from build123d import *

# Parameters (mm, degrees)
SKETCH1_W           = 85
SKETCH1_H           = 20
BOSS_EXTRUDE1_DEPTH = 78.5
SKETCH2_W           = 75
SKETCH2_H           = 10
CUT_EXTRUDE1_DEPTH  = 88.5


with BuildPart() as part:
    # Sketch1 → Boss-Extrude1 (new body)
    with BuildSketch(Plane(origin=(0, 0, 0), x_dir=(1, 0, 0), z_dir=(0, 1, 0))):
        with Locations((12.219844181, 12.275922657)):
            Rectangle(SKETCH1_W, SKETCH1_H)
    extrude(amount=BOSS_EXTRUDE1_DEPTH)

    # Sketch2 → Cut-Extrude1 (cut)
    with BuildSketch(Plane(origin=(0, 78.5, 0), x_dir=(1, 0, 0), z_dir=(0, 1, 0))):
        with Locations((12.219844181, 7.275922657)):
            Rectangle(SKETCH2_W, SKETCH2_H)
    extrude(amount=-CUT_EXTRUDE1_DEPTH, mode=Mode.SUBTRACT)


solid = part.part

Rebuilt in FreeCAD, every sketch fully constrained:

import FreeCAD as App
import Part
import Sketcher

V = App.Vector
Q = App.Units.Quantity

doc = App.newDocument("Part")
body = doc.addObject("PartDesign::Body", "Body")

# Sketch on XZ plane
sketch1 = body.newObject("Sketcher::SketchObject", "Sketch")
sketch1.AttachmentSupport = (doc.getObject("XZ_Plane"), [""])
sketch1.MapMode = "FlatFace"
sketch1.addGeometry([
    Part.LineSegment(V(-30.280156, -22.275923, 0), V(-30.280156, -2.275923, 0)),
    Part.LineSegment(V(-30.280156, -2.275923, 0), V(54.719844, -2.275923, 0)),
    Part.LineSegment(V(54.719844, -2.275923, 0), V(54.719844, -22.275923, 0)),
    Part.LineSegment(V(54.719844, -22.275923, 0), V(-30.280156, -22.275923, 0)),
], False)
sketch1.addConstraint([
    Sketcher.Constraint("Coincident", 0, 2, 1, 1),
    Sketcher.Constraint("Coincident", 1, 2, 2, 1),
    Sketcher.Constraint("Coincident", 2, 2, 3, 1),
    Sketcher.Constraint("Coincident", 3, 2, 0, 1),
    Sketcher.Constraint("Vertical", 0),
    Sketcher.Constraint("Horizontal", 1),
    Sketcher.Constraint("Vertical", 2),
    Sketcher.Constraint("Horizontal", 3),
    Sketcher.Constraint("DistanceX", 1, 1, 1, 2, Q("85 mm")),
    Sketcher.Constraint("DistanceY", 0, 1, 0, 2, Q("20 mm")),
    Sketcher.Constraint("DistanceX", 0, 2, -1, 1, Q("30.280156 mm")),
    Sketcher.Constraint("DistanceY", 0, 2, -1, 1, Q("2.275923 mm")),
])
pad1 = body.newObject("PartDesign::Pad", "Pad")
pad1.Profile = sketch1
pad1.Length = 78.5
pad1.Reversed = True

# Sketch on XZ plane
sketch2 = body.newObject("Sketcher::SketchObject", "Sketch001")
sketch2.AttachmentSupport = (doc.getObject("XZ_Plane"), [""])
sketch2.MapMode = "FlatFace"
sketch2.AttachmentOffset = App.Placement(V(0, 0, -78.5), App.Rotation())
sketch2.addGeometry([
    Part.LineSegment(V(-25.280156, -12.275923, 0), V(-25.280156, -2.275923, 0)),
    Part.LineSegment(V(-25.280156, -2.275923, 0), V(49.719844, -2.275923, 0)),
    Part.LineSegment(V(49.719844, -2.275923, 0), V(49.719844, -12.275923, 0)),
    Part.LineSegment(V(49.719844, -12.275923, 0), V(-25.280156, -12.275923, 0)),
], False)
sketch2.addConstraint([
    Sketcher.Constraint("Coincident", 0, 2, 1, 1),
    Sketcher.Constraint("Coincident", 1, 2, 2, 1),
    Sketcher.Constraint("Coincident", 2, 2, 3, 1),
    Sketcher.Constraint("Coincident", 3, 2, 0, 1),
    Sketcher.Constraint("Vertical", 0),
    Sketcher.Constraint("Horizontal", 1),
    Sketcher.Constraint("Vertical", 2),
    Sketcher.Constraint("Horizontal", 3),
    Sketcher.Constraint("DistanceX", 1, 1, 1, 2, Q("75 mm")),
    Sketcher.Constraint("DistanceY", 0, 1, 0, 2, Q("10 mm")),
    Sketcher.Constraint("DistanceX", 0, 2, -1, 1, Q("25.280156 mm")),
    Sketcher.Constraint("DistanceY", 0, 2, -1, 1, Q("2.275923 mm")),
])
pocket1 = body.newObject("PartDesign::Pocket", "Pocket")
pocket1.Profile = sketch2
pocket1.Length = 88.5
pocket1.Reversed = True

doc.recompute()
